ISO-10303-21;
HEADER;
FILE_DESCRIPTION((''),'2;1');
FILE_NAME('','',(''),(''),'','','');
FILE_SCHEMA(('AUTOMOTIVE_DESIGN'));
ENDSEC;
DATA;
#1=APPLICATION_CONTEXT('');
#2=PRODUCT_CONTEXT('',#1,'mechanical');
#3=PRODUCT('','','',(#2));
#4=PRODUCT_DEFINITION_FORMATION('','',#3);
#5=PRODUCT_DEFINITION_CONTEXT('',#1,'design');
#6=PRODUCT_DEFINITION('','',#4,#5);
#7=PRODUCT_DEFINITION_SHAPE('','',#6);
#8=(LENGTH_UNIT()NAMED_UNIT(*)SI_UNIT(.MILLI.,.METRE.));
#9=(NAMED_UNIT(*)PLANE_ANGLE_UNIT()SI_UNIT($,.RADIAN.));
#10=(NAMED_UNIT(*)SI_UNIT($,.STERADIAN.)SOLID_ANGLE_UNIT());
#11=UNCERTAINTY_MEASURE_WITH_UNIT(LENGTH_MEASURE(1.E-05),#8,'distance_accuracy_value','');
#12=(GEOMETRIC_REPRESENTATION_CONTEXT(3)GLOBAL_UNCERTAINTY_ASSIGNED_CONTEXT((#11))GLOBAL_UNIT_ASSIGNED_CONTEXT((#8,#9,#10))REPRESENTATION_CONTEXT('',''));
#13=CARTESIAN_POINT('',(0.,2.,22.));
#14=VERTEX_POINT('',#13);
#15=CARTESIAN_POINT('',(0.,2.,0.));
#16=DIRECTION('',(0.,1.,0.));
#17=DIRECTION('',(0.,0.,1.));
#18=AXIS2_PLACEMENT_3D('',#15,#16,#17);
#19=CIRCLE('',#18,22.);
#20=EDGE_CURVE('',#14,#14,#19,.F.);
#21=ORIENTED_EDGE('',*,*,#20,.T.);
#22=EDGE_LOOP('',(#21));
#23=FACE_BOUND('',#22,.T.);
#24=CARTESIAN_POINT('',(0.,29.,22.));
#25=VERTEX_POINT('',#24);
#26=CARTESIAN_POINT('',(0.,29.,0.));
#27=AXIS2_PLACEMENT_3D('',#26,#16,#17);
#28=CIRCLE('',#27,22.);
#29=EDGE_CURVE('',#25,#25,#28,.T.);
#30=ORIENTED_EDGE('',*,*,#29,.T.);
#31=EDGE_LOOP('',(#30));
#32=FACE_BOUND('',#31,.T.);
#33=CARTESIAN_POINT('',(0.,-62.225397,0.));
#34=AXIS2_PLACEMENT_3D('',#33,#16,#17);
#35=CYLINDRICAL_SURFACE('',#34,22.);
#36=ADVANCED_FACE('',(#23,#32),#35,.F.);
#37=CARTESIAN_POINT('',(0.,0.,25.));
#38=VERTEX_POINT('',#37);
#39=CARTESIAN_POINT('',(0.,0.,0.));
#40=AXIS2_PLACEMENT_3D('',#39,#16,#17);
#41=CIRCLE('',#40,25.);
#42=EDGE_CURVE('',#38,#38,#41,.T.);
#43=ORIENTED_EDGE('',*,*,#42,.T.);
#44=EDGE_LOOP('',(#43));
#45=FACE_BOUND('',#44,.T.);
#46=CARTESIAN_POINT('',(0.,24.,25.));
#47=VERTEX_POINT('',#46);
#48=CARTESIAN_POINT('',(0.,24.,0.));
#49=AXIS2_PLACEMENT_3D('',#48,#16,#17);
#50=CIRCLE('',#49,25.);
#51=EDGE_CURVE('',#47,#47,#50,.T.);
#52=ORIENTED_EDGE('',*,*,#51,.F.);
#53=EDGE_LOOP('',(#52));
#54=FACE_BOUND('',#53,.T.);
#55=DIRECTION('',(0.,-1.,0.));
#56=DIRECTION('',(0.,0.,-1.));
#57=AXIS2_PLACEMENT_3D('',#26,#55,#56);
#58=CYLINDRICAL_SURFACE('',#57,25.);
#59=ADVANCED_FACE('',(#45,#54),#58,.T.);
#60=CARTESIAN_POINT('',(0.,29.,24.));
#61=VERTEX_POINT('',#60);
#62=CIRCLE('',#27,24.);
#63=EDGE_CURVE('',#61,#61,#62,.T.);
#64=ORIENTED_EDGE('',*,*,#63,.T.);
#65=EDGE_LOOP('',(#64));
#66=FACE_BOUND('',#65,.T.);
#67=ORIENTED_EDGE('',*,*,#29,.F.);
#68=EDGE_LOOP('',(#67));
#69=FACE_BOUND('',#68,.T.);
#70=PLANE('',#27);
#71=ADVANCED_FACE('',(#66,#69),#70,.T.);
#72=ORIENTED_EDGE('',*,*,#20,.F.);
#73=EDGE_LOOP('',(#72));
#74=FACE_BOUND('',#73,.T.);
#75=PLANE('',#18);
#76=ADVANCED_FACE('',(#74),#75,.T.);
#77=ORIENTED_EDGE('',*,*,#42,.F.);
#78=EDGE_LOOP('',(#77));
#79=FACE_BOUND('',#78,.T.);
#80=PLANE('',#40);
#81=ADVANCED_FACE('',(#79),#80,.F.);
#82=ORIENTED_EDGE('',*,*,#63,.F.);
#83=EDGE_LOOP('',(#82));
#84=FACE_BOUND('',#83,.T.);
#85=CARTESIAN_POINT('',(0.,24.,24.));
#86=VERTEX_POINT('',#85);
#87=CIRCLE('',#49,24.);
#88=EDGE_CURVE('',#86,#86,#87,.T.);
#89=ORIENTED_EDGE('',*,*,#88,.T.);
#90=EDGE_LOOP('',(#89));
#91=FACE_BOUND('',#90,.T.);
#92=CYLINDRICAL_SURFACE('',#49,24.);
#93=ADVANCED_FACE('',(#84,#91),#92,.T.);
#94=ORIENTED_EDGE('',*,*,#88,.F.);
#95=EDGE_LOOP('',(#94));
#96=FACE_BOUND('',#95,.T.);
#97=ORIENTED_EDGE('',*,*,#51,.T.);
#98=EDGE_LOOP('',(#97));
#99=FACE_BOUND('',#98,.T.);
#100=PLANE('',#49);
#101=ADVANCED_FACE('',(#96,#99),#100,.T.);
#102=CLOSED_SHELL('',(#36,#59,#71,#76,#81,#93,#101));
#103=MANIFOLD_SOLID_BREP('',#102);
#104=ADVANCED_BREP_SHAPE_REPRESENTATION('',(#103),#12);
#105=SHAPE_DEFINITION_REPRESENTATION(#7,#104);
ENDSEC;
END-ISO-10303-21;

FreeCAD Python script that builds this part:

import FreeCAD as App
import Part
import Sketcher

doc = App.newDocument("Part")
body = doc.addObject("PartDesign::Body", "Body")

sketch1 = body.newObject("Sketcher::SketchObject", "Sketch")
sketch1.AttachmentSupport = (doc.getObject("XZ_Plane"), [""])
sketch1.MapMode = "FlatFace"
sketch1.addGeometry(Part.Circle(App.Vector(0, 0, 0), App.Vector(0, 0, 1), 25), False)
sketch1.addConstraint(Sketcher.Constraint("Coincident", 0, 3, -1, 1))
sketch1.addConstraint(Sketcher.Constraint("Diameter", 0, 50.0))
pad1 = body.newObject("PartDesign::Pad", "Pad")
pad1.Profile = sketch1
pad1.Length = 29
pad1.Reversed = True

sketch2 = body.newObject("Sketcher::SketchObject", "Sketch001")
sketch2.AttachmentSupport = (doc.getObject("XZ_Plane"), [""])
sketch2.MapMode = "FlatFace"
sketch2.AttachmentOffset = App.Placement(App.Vector(0, 0, -24), App.Rotation())
sketch2.addGeometry(Part.Circle(App.Vector(0, 0, 0), App.Vector(0, 0, 1), 25), False)
sketch2.addGeometry(Part.Circle(App.Vector(0, 0, 0), App.Vector(0, 0, 1), 24), False)
sketch2.addConstraint(Sketcher.Constraint("Coincident", 0, 3, -1, 1))
sketch2.addConstraint(Sketcher.Constraint("Coincident", 1, 3, -1, 1))
sketch2.addConstraint(Sketcher.Constraint("Diameter", 0, 50.0))
sketch2.addConstraint(Sketcher.Constraint("Diameter", 1, 48.0))
pocket1 = body.newObject("PartDesign::Pocket", "Pocket")
pocket1.Profile = sketch2
pocket1.Length = 5

sketch3 = body.newObject("Sketcher::SketchObject", "Sketch002")
sketch3.AttachmentSupport = (doc.getObject("XZ_Plane"), [""])
sketch3.MapMode = "FlatFace"
sketch3.AttachmentOffset = App.Placement(App.Vector(0, 0, -29), App.Rotation())
sketch3.addGeometry(Part.Circle(App.Vector(0, 0, 0), App.Vector(0, 0, 1), 22), False)
sketch3.addConstraint(Sketcher.Constraint("Coincident", 0, 3, -1, 1))
sketch3.addConstraint(Sketcher.Constraint("Diameter", 0, 44.0))
pocket2 = body.newObject("PartDesign::Pocket", "Pocket001")
pocket2.Profile = sketch3
pocket2.Length = 27
pocket2.Reversed = True

doc.recompute()
